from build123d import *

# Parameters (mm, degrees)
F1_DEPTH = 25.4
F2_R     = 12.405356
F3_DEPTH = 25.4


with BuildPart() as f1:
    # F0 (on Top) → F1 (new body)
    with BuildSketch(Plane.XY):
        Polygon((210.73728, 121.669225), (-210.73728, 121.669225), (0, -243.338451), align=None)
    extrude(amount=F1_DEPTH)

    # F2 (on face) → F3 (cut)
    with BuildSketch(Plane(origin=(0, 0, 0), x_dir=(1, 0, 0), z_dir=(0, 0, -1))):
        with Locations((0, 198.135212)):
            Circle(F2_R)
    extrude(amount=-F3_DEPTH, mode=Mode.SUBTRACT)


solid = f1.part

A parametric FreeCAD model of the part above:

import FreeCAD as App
import Part
import Sketcher
Q = App.Units.Quantity

doc = App.newDocument("Part")
body = doc.addObject("PartDesign::Body", "Body")

sketch1 = doc.addObject("Sketcher::SketchObject", "Sketch")
body.addObject(sketch1)
sketch1.AttachmentSupport = (doc.XY_Plane, [""])
sketch1.MapMode = "FlatFace"
sketch1.addGeometry(Part.LineSegment(App.Vector(211, 122, 0), App.Vector(-211, 122, 0)), False)
sketch1.addGeometry(Part.LineSegment(App.Vector(-211, 122, 0), App.Vector(0, -243, 0)), False)
sketch1.addGeometry(Part.LineSegment(App.Vector(0, -243, 0), App.Vector(211, 122, 0)), False)
sketch1.addConstraint(Sketcher.Constraint("Coincident", 0, 2, 1, 1))
sketch1.addConstraint(Sketcher.Constraint("Coincident", 1, 2, 2, 1))
sketch1.addConstraint(Sketcher.Constraint("Coincident", 2, 2, 0, 1))
sketch1.addConstraint(Sketcher.Constraint("Horizontal", 0))
sketch1.addConstraint(Sketcher.Constraint("PointOnObject", 1, 2, -2))
sketch1.addConstraint(Sketcher.Constraint("Equal", 1, 2))
sketch1.addConstraint(Sketcher.Constraint("Angle", 1, Q("-60 deg")))
sketch1.addConstraint(Sketcher.Constraint("DistanceX", 0, 2, 0, 1, Q("421.47456 mm")))
sketch1.addConstraint(Sketcher.Constraint("DistanceY", 1, 2, -1, 1, Q("243.338451 mm")))
pad1 = doc.addObject("PartDesign::Pad", "Pad")
body.addObject(pad1)
pad1.Profile = sketch1
pad1.Length = Q("1 in")

sketch2 = doc.addObject("Sketcher::SketchObject", "Sketch001")
body.addObject(sketch2)
sketch2.AttachmentSupport = (doc.XY_Plane, [""])
sketch2.MapMode = "FlatFace"
sketch2.addGeometry(Part.Circle(App.Vector(0, -198, 0), App.Vector(0, 0, 1), 12), False)
sketch2.addConstraint(Sketcher.Constraint("PointOnObject", 0, 3, -2))
sketch2.addConstraint(Sketcher.Constraint("Diameter", 0, Q("24.810712 mm")))
sketch2.addConstraint(Sketcher.Constraint("DistanceY", 0, 3, -1, 1, Q("198.135212 mm")))
pocket1 = doc.addObject("PartDesign::Pocket", "Pocket")
body.addObject(pocket1)
pocket1.Profile = sketch2
pocket1.Length = Q("1 in")
pocket1.Reversed = True

doc.recompute()
